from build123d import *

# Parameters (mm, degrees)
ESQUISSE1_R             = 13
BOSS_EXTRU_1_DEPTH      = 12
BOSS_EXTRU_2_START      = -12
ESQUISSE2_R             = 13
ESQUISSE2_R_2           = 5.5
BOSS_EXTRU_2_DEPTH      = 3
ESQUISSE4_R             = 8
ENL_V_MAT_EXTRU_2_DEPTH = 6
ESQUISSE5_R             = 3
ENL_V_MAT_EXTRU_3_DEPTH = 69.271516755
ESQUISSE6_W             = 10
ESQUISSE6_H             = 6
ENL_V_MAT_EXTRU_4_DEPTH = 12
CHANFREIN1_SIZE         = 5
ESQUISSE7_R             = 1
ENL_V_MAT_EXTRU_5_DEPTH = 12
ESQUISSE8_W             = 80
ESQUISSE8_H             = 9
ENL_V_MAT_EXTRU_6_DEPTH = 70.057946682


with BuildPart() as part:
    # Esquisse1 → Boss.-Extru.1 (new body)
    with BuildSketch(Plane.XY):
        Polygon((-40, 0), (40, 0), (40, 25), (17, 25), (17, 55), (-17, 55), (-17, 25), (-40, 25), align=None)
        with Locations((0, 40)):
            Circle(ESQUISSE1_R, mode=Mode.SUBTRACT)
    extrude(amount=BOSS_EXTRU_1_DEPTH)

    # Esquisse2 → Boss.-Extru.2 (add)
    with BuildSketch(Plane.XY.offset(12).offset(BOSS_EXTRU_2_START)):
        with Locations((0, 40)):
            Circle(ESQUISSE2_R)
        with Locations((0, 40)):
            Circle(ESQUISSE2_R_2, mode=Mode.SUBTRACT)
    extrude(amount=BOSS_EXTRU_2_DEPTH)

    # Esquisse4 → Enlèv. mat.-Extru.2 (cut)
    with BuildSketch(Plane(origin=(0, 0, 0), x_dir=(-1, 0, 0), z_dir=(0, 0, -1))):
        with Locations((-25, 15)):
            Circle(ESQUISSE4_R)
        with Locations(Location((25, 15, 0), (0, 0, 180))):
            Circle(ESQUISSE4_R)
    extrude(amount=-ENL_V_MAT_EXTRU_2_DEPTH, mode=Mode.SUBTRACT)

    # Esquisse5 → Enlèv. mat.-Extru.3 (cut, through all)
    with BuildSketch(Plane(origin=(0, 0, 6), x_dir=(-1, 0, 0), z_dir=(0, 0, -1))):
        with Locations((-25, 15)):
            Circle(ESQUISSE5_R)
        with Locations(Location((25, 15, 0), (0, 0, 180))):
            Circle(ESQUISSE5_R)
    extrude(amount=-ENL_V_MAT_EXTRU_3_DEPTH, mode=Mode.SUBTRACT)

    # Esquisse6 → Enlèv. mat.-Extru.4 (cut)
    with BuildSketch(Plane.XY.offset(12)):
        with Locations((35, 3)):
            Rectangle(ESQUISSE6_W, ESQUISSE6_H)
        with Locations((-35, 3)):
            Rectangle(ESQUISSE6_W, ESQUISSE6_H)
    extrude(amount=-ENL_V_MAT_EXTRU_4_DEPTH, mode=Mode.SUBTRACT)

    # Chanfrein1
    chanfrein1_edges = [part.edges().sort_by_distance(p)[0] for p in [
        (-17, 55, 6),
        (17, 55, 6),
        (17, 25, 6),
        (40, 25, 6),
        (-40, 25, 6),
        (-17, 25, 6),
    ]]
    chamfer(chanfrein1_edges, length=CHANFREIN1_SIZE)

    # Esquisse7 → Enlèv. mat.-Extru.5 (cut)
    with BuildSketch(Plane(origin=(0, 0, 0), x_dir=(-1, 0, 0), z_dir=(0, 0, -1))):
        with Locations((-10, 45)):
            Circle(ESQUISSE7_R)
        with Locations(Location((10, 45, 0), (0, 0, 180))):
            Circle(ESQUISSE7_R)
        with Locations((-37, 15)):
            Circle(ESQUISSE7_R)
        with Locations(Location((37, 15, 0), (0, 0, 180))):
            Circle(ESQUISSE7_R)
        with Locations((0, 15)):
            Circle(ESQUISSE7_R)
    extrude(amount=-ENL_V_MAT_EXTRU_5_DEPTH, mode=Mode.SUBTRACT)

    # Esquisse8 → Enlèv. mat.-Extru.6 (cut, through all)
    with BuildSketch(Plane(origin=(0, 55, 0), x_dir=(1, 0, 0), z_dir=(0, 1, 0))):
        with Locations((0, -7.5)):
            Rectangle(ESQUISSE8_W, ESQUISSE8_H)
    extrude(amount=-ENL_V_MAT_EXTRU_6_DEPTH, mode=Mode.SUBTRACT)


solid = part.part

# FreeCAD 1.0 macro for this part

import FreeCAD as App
import Part
import Sketcher
Q = App.Units.Quantity


def edges_at(feature, points):
    """Names of the edges that pass closest to the given points."""
    edges = feature.Shape.Edges
    near = lambda p: min(range(len(edges)), key=lambda i: edges[i].distToShape(Part.Vertex(*p))[0])
    return sorted({f"Edge{near(p) + 1}" for p in points})


def add_polygon(sketch, points):
    """Adds a closed chain of lines whose ends are joined by coincident constraints."""
    first, n = sketch.GeometryCount, len(points)
    for a, b in zip(points, points[1:] + points[:1]):
        sketch.addGeometry(Part.LineSegment(App.Vector(*a, 0), App.Vector(*b, 0)), False)
    for i in range(n):
        sketch.addConstraint(Sketcher.Constraint("Coincident", first + i, 2, first + (i + 1) % n, 1))

doc = App.newDocument("Part")
body = doc.addObject("PartDesign::Body", "Body")

# Sketch on XY plane
sketch1 = doc.addObject("Sketcher::SketchObject", "Sketch")
body.addObject(sketch1)
sketch1.AttachmentSupport = (doc.XY_Plane, [""])
sketch1.MapMode = "FlatFace"
add_polygon(sketch1, [(-40, 0), (40, 0), (40, 25), (17, 25), (17, 55), (-17, 55), (-17, 25), (-40, 25)])  # lines 0-7
sketch1.addGeometry(Part.Circle(App.Vector(0, 40, 0), App.Vector(0, 0, 1), 13), False)  # 8
sketch1.addConstraint([
    Sketcher.Constraint("Horizontal", 0),
    Sketcher.Constraint("Vertical", 1),
    Sketcher.Constraint("Horizontal", 2),
    Sketcher.Constraint("Vertical", 3),
    Sketcher.Constraint("Horizontal", 4),
    Sketcher.Constraint("Vertical", 5),
    Sketcher.Constraint("Horizontal", 6),
    Sketcher.Constraint("Vertical", 7),
    Sketcher.Constraint("Symmetric", 0, 2, 7, 2, -1, 1),
    Sketcher.Constraint("Symmetric", 2, 2, 5, 2, -2),
    Sketcher.Constraint("PointOnObject", 8, 3, -2),
    Sketcher.Constraint("Diameter", 8, Q("26 mm")),
    Sketcher.Constraint("DistanceX", 0, 1, 0, 2, Q("80 mm")),
    Sketcher.Constraint("DistanceX", 2, 2, 2, 1, Q("23 mm")),
    Sketcher.Constraint("DistanceY", 1, 1, 1, 2, Q("25 mm")),
    Sketcher.Constraint("DistanceY", 3, 1, 3, 2, Q("30 mm")),
    Sketcher.Constraint("DistanceY", -1, 1, 8, 3, Q("40 mm")),
])
pad1 = doc.addObject("PartDesign::Pad", "Pad")
body.addObject(pad1)
pad1.Profile = sketch1
pad1.Length = 12

# Sketch on XY plane
sketch2 = doc.addObject("Sketcher::SketchObject", "Sketch001")
body.addObject(sketch2)
sketch2.AttachmentSupport = (doc.XY_Plane, [""])
sketch2.MapMode = "FlatFace"
sketch2.addGeometry([
    Part.Circle(App.Vector(0, 40, 0), App.Vector(0, 0, 1), 13),
    Part.Circle(App.Vector(0, 40, 0), App.Vector(0, 0, 1), 6),
], False)
sketch2.addConstraint([
    Sketcher.Constraint("Coincident", 1, 3, 0, 3),
    Sketcher.Constraint("PointOnObject", 0, 3, -2),
    Sketcher.Constraint("Diameter", 0, Q("26 mm")),
    Sketcher.Constraint("Diameter", 1, Q("11 mm")),
    Sketcher.Constraint("DistanceY", -1, 1, 0, 3, Q("40 mm")),
])
pad2 = doc.addObject("PartDesign::Pad", "Pad001")
body.addObject(pad2)
pad2.Profile = sketch2
pad2.Length = 3

# Sketch on XY plane
sketch3 = doc.addObject("Sketcher::SketchObject", "Sketch002")
body.addObject(sketch3)
sketch3.AttachmentSupport = (doc.XY_Plane, [""])
sketch3.MapMode = "FlatFace"
sketch3.addGeometry([
    Part.Circle(App.Vector(25, 15, 0), App.Vector(0, 0, 1), 8),
    Part.Circle(App.Vector(-25, 15, 0), App.Vector(0, 0, 1), 8),
], False)
sketch3.addConstraint([
    Sketcher.Constraint("Equal", 0, 1),
    Sketcher.Constraint("Symmetric", 0, 3, 1, 3, -2),
    Sketcher.Constraint("Diameter", 0, Q("16 mm")),
    Sketcher.Constraint("DistanceX", -1, 1, 0, 3, Q("25 mm")),
    Sketcher.Constraint("DistanceY", -1, 1, 0, 3, Q("15 mm")),
])
pocket1 = doc.addObject("PartDesign::Pocket", "Pocket")
body.addObject(pocket1)
pocket1.Profile = sketch3
pocket1.Length = 6
pocket1.Reversed = True

# Sketch on XY plane
sketch4 = doc.addObject("Sketcher::SketchObject", "Sketch003")
body.addObject(sketch4)
sketch4.AttachmentSupport = (doc.XY_Plane, [""])
sketch4.MapMode = "FlatFace"
sketch4.AttachmentOffset = App.Placement(App.Vector(0, 0, 6), App.Rotation())
sketch4.addGeometry([
    Part.Circle(App.Vector(25, 15, 0), App.Vector(0, 0, 1), 3),
    Part.Circle(App.Vector(-25, 15, 0), App.Vector(0, 0, 1), 3),
], False)
sketch4.addConstraint([
    Sketcher.Constraint("Equal", 0, 1),
    Sketcher.Constraint("Symmetric", 0, 3, 1, 3, -2),
    Sketcher.Constraint("Diameter", 0, Q("6 mm")),
    Sketcher.Constraint("DistanceX", -1, 1, 0, 3, Q("25 mm")),
    Sketcher.Constraint("DistanceY", -1, 1, 0, 3, Q("15 mm")),
])
pocket2 = doc.addObject("PartDesign::Pocket", "Pocket001")
body.addObject(pocket2)
pocket2.Profile = sketch4
pocket2.Type = "ThroughAll"
pocket2.Reversed = True

# Sketch on XY plane
sketch5 = doc.addObject("Sketcher::SketchObject", "Sketch004")
body.addObject(sketch5)
sketch5.AttachmentSupport = (doc.XY_Plane, [""])
sketch5.MapMode = "FlatFace"
sketch5.AttachmentOffset = App.Placement(App.Vector(0, 0, 12), App.Rotation())
add_polygon(sketch5, [(30, 6), (30, 0), (40, 0), (40, 6)])  # lines 0-3
add_polygon(sketch5, [(-40, 6), (-40, 0), (-30, 0), (-30, 6)])  # lines 4-7
sketch5.addConstraint([
    Sketcher.Constraint("Vertical", 0),
    Sketcher.Constraint("Horizontal", 1),
    Sketcher.Constraint("Vertical", 2),
    Sketcher.Constraint("Horizontal", 3),
    Sketcher.Constraint("Vertical", 4),
    Sketcher.Constraint("Horizontal", 5),
    Sketcher.Constraint("Vertical", 6),
    Sketcher.Constraint("Horizontal", 7),
    Sketcher.Constraint("Symmetric", 1, 2, 4, 2, -1, 1),
    Sketcher.Constraint("Symmetric", 0, 2, 5, 2, -2),
    Sketcher.Constraint("Horizontal", 3, 2, 6, 2),
    Sketcher.Constraint("DistanceX", 1, 1, 1, 2, Q("10 mm")),
    Sketcher.Constraint("DistanceY", 0, 2, 0, 1, Q("6 mm")),
    Sketcher.Constraint("DistanceX", -1, 1, 0, 2, Q("30 mm")),
])
pocket3 = doc.addObject("PartDesign::Pocket", "Pocket002")
body.addObject(pocket3)
pocket3.Profile = sketch5
pocket3.Length = 12
doc.recompute()

chamfer = doc.addObject("PartDesign::Chamfer", "Chamfer")
body.addObject(chamfer)
chamfer.Base = (pocket3, edges_at(pocket3, [
    (-17, 55, 6),
    (17, 55, 6),
    (17, 25, 6),
    (40, 25, 6),
    (-40, 25, 6),
    (-17, 25, 6),
]))
chamfer.Size = 5

# Sketch on XY plane
sketch6 = doc.addObject("Sketcher::SketchObject", "Sketch005")
body.addObject(sketch6)
sketch6.AttachmentSupport = (doc.XY_Plane, [""])
sketch6.MapMode = "FlatFace"
sketch6.addGeometry([
    Part.Circle(App.Vector(10, 45, 0), App.Vector(0, 0, 1), 1),  # 0
    Part.Circle(App.Vector(-10, 45, 0), App.Vector(0, 0, 1), 1),  # 1
    Part.Circle(App.Vector(37, 15, 0), App.Vector(0, 0, 1), 1),  # 2
    Part.Circle(App.Vector(-37, 15, 0), App.Vector(0, 0, 1), 1),  # 3
    Part.Circle(App.Vector(0, 15, 0), App.Vector(0, 0, 1), 1),  # 4
], False)
sketch6.addConstraint([
    Sketcher.Constraint("Equal", 0, 1),
    Sketcher.Constraint("Equal", 1, 2),
    Sketcher.Constraint("Equal", 2, 3),
    Sketcher.Constraint("Equal", 3, 4),
    Sketcher.Constraint("Symmetric", 0, 3, 1, 3, -2),
    Sketcher.Constraint("Symmetric", 2, 3, 3, 3, -2),
    Sketcher.Constraint("PointOnObject", 4, 3, -2),
    Sketcher.Constraint("Horizontal", 3, 3, 4, 3),
    Sketcher.Constraint("Diameter", 0, Q("2 mm")),
    Sketcher.Constraint("DistanceX", -1, 1, 0, 3, Q("10 mm")),
    Sketcher.Constraint("DistanceY", -1, 1, 0, 3, Q("45 mm")),
    Sketcher.Constraint("DistanceX", -1, 1, 2, 3, Q("37 mm")),
    Sketcher.Constraint("DistanceY", -1, 1, 2, 3, Q("15 mm")),
])
pocket4 = doc.addObject("PartDesign::Pocket", "Pocket003")
body.addObject(pocket4)
pocket4.Profile = sketch6
pocket4.Length = 12
pocket4.Reversed = True

# Sketch on XZ plane
sketch7 = doc.addObject("Sketcher::SketchObject", "Sketch006")
body.addObject(sketch7)
sketch7.AttachmentSupport = (doc.XZ_Plane, [""])
sketch7.MapMode = "FlatFace"
sketch7.AttachmentOffset = App.Placement(App.Vector(0, 0, -55), App.Rotation())
add_polygon(sketch7, [(-40, 3), (-40, 12), (40, 12), (40, 3)])  # lines 0-3
sketch7.addConstraint([
    Sketcher.Constraint("Vertical", 0),
    Sketcher.Constraint("Horizontal", 1),
    Sketcher.Constraint("Vertical", 2),
    Sketcher.Constraint("Horizontal", 3),
    Sketcher.Constraint("DistanceX", 1, 1, 1, 2, Q("80 mm")),
    Sketcher.Constraint("DistanceY", 0, 1, 0, 2, Q("9 mm")),
    Sketcher.Constraint("DistanceX", 0, 2, -1, 1, Q("40 mm")),
    Sketcher.Constraint("DistanceY", -1, 1, 0, 2, Q("12 mm")),
])
pocket5 = doc.addObject("PartDesign::Pocket", "Pocket004")
body.addObject(pocket5)
pocket5.Profile = sketch7
pocket5.Type = "ThroughAll"
pocket5.Reversed = True

doc.recompute()
